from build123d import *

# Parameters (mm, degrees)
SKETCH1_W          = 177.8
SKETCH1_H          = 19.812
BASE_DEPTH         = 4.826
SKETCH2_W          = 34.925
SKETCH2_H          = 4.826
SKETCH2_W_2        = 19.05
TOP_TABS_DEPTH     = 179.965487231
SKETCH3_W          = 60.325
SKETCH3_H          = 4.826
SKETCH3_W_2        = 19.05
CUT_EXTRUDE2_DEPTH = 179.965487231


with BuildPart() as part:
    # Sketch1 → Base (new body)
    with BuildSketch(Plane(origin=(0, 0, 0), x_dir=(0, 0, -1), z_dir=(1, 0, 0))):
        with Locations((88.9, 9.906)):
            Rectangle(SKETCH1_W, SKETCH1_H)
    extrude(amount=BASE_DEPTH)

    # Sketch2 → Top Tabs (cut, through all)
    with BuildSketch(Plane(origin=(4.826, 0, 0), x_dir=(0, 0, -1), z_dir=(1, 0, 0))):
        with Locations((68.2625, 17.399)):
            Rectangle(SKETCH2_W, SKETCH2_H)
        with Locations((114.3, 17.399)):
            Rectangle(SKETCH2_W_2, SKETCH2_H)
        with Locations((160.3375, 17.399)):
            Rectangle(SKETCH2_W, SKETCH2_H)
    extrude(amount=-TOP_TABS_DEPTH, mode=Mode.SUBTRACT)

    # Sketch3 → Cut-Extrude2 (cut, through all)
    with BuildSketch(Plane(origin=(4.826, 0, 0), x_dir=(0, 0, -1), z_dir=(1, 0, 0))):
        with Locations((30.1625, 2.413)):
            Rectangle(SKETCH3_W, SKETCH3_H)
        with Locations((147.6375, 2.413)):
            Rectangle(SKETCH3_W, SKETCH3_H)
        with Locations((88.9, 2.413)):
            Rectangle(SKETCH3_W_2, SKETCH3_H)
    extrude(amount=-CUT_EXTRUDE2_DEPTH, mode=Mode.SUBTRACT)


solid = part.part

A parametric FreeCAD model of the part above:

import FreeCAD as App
import Part
import Sketcher

V = App.Vector
Q = App.Units.Quantity


def add_polygon(sketch, points):
    """Adds a closed chain of lines whose ends are joined by coincident constraints."""
    first, n = sketch.GeometryCount, len(points)
    for a, b in zip(points, points[1:] + points[:1]):
        sketch.addGeometry(Part.LineSegment(App.Vector(*a, 0), App.Vector(*b, 0)), False)
    for i in range(n):
        sketch.addConstraint(Sketcher.Constraint("Coincident", first + i, 2, first + (i + 1) % n, 1))

doc = App.newDocument("Part")
body = doc.addObject("PartDesign::Body", "Body")

# Sketch on YZ plane
sketch1 = body.newObject("Sketcher::SketchObject", "Sketch")
sketch1.AttachmentSupport = (doc.getObject("YZ_Plane"), [""])
sketch1.MapMode = "FlatFace"
add_polygon(sketch1, [(19.812, 0), (0, 0), (0, -177.8), (19.812, -177.8)])  # lines 0-3
sketch1.addConstraint(Sketcher.Constraint("Horizontal", 0))
sketch1.addConstraint(Sketcher.Constraint("Vertical", 1))
sketch1.addConstraint(Sketcher.Constraint("Horizontal", 2))
sketch1.addConstraint(Sketcher.Constraint("Vertical", 3))
sketch1.addConstraint(Sketcher.Constraint("Coincident", 0, 2, -1, 1))
sketch1.addConstraint(Sketcher.Constraint("DistanceY", 1, 2, 1, 1, Q("7 in")))
sketch1.addConstraint(Sketcher.Constraint("DistanceX", 0, 2, 0, 1, Q("0.78 in")))
pad1 = body.newObject("PartDesign::Pad", "Pad")
pad1.Profile = sketch1
pad1.Length = Q("0.19 in")

# Sketch on YZ plane
sketch2 = body.newObject("Sketcher::SketchObject", "Sketch001")
sketch2.AttachmentSupport = (doc.getObject("YZ_Plane"), [""])
sketch2.MapMode = "FlatFace"
sketch2.AttachmentOffset = App.Placement(V(0, 0, 0.19 * 25.4), App.Rotation())
add_polygon(sketch2, [(19.812, -50.8), (14.986, -50.8), (14.986, -85.725), (19.812, -85.725)])  # lines 0-3
add_polygon(sketch2, [(19.812, -104.775), (14.986, -104.775), (14.986, -123.825), (19.812, -123.825)])  # lines 4-7
add_polygon(sketch2, [(19.812, -142.875), (14.986, -142.875), (14.986, -177.8), (19.812, -177.8)])  # lines 8-11
sketch2.addConstraint(Sketcher.Constraint("Horizontal", 0))
sketch2.addConstraint(Sketcher.Constraint("Vertical", 1))
sketch2.addConstraint(Sketcher.Constraint("Horizontal", 2))
sketch2.addConstraint(Sketcher.Constraint("Vertical", 3))
sketch2.addConstraint(Sketcher.Constraint("Horizontal", 4))
sketch2.addConstraint(Sketcher.Constraint("Vertical", 5))
sketch2.addConstraint(Sketcher.Constraint("Horizontal", 6))
sketch2.addConstraint(Sketcher.Constraint("Vertical", 7))
sketch2.addConstraint(Sketcher.Constraint("Horizontal", 8))
sketch2.addConstraint(Sketcher.Constraint("Vertical", 9))
sketch2.addConstraint(Sketcher.Constraint("Horizontal", 10))
sketch2.addConstraint(Sketcher.Constraint("Vertical", 11))
sketch2.addConstraint(Sketcher.Constraint("Vertical", 1, 2, 4, 2))
sketch2.addConstraint(Sketcher.Constraint("Vertical", 3, 2, 6, 2))
sketch2.addConstraint(Sketcher.Constraint("Vertical", 5, 2, 8, 2))
sketch2.addConstraint(Sketcher.Constraint("Vertical", 7, 2, 10, 2))
sketch2.addConstraint(Sketcher.Constraint("Equal", 3, 9))
sketch2.addConstraint(Sketcher.Constraint("DistanceY", 0, 2, -1, 1, Q("2 in")))
sketch2.addConstraint(Sketcher.Constraint("DistanceY", 9, 2, -1, 1, Q("7 in")))
sketch2.addConstraint(Sketcher.Constraint("DistanceX", 0, 2, 0, 1, Q("0.19 in")))
sketch2.addConstraint(Sketcher.Constraint("DistanceY", 5, 2, 5, 1, Q("0.75 in")))
sketch2.addConstraint(Sketcher.Constraint("DistanceY", 5, 2, 1, 2, Q("1.5 in")))
sketch2.addConstraint(Sketcher.Constraint("DistanceY", 8, 2, 4, 2, Q("1.5 in")))
sketch2.addConstraint(Sketcher.Constraint("DistanceX", -1, 1, 0, 2, Q("0.59 in")))
pocket1 = body.newObject("PartDesign::Pocket", "Pocket")
pocket1.Profile = sketch2
pocket1.Type = "ThroughAll"

# Sketch on YZ plane
sketch3 = body.newObject("Sketcher::SketchObject", "Sketch002")
sketch3.AttachmentSupport = (doc.getObject("YZ_Plane"), [""])
sketch3.MapMode = "FlatFace"
sketch3.AttachmentOffset = App.Placement(V(0, 0, 0.19 * 25.4), App.Rotation())
add_polygon(sketch3, [(4.826, 0), (0, 0), (0, -60.325), (4.826, -60.325)])  # lines 0-3
add_polygon(sketch3, [(4.826, -117.475), (0, -117.475), (0, -177.8), (4.826, -177.8)])  # lines 4-7
add_polygon(sketch3, [(4.826, -79.375), (0, -79.375), (0, -98.425), (4.826, -98.425)])  # lines 8-11
sketch3.addConstraint(Sketcher.Constraint("Horizontal", 0))
sketch3.addConstraint(Sketcher.Constraint("Vertical", 1))
sketch3.addConstraint(Sketcher.Constraint("Horizontal", 2))
sketch3.addConstraint(Sketcher.Constraint("Vertical", 3))
sketch3.addConstraint(Sketcher.Constraint("Horizontal", 4))
sketch3.addConstraint(Sketcher.Constraint("Vertical", 5))
sketch3.addConstraint(Sketcher.Constraint("Horizontal", 6))
sketch3.addConstraint(Sketcher.Constraint("Vertical", 7))
sketch3.addConstraint(Sketcher.Constraint("Horizontal", 8))
sketch3.addConstraint(Sketcher.Constraint("Vertical", 9))
sketch3.addConstraint(Sketcher.Constraint("Horizontal", 10))
sketch3.addConstraint(Sketcher.Constraint("Vertical", 11))
sketch3.addConstraint(Sketcher.Constraint("Coincident", 0, 2, -1, 1))
sketch3.addConstraint(Sketcher.Constraint("PointOnObject", 4, 2, -2))
sketch3.addConstraint(Sketcher.Constraint("PointOnObject", 8, 2, -2))
sketch3.addConstraint(Sketcher.Constraint("Vertical", 3, 2, 6, 2))
sketch3.addConstraint(Sketcher.Constraint("Vertical", 7, 2, 10, 2))
sketch3.addConstraint(Sketcher.Constraint("Equal", 3, 5))
sketch3.addConstraint(Sketcher.Constraint("DistanceY", 5, 2, -1, 1, Q("7 in")))
sketch3.addConstraint(Sketcher.Constraint("DistanceX", 0, 2, 0, 1, Q("0.19 in")))
sketch3.addConstraint(Sketcher.Constraint("DistanceY", 9, 2, 9, 1, Q("0.75 in")))
sketch3.addConstraint(Sketcher.Constraint("DistanceY", 4, 2, 8, 2, Q("1.5 in")))
sketch3.addConstraint(Sketcher.Constraint("DistanceY", 9, 2, 1, 2, Q("1.5 in")))
pocket2 = body.newObject("PartDesign::Pocket", "Pocket001")
pocket2.Profile = sketch3
pocket2.Type = "ThroughAll"

doc.recompute()
